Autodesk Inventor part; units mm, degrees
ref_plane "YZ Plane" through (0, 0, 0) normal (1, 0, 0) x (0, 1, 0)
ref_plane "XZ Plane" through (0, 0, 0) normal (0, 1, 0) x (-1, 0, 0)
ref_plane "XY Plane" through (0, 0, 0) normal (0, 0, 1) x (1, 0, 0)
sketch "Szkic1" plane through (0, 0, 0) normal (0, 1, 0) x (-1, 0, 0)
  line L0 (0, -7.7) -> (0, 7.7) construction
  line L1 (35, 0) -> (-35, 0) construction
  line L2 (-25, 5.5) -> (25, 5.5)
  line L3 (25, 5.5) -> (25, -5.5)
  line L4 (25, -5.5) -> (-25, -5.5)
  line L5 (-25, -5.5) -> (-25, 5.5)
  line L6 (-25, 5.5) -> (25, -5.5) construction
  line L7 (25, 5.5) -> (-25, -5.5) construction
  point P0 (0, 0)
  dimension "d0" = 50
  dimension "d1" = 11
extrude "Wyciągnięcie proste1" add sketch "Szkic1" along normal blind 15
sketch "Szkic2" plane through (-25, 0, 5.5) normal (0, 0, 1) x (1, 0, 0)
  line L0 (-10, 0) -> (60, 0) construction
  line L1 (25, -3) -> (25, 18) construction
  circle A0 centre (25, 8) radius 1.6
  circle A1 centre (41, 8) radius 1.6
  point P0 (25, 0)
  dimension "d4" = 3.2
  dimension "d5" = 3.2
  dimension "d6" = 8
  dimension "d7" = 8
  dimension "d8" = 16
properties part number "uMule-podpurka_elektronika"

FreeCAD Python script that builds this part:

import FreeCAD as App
import Part
import Sketcher

V = App.Vector
Q = App.Units.Quantity


def add_polygon(sketch, points):
    """Adds a closed chain of lines whose ends are joined by coincident constraints."""
    first, n = sketch.GeometryCount, len(points)
    for a, b in zip(points, points[1:] + points[:1]):
        sketch.addGeometry(Part.LineSegment(App.Vector(*a, 0), App.Vector(*b, 0)), False)
    for i in range(n):
        sketch.addConstraint(Sketcher.Constraint("Coincident", first + i, 2, first + (i + 1) % n, 1))

doc = App.newDocument("Part")
params = doc.addObject("Spreadsheet::Sheet", "Params")
for row, (alias, value) in enumerate([
    ("sketch1_width", "50 mm"),
    ("sketch1_height", "11 mm"),
    ("pad1_length", "15 mm"),
], start=1):
    params.set(f"A{row}", alias)
    params.set(f"B{row}", "=" + value)
    params.setAlias(f"B{row}", alias)

body = doc.addObject("PartDesign::Body", "Body")

sketch1 = doc.addObject("Sketcher::SketchObject", "Sketch")
body.addObject(sketch1)
sketch1.AttachmentSupport = (doc.XZ_Plane, [""])
sketch1.MapMode = "FlatFace"
add_polygon(sketch1, [(-25, 6), (25, 6), (25, -6), (-25, -6)])
sketch1.addConstraint([
    Sketcher.Constraint("Horizontal", 0),
    Sketcher.Constraint("Vertical", 1),
    Sketcher.Constraint("Horizontal", 2),
    Sketcher.Constraint("Vertical", 3),
    Sketcher.Constraint("Symmetric", 0, 2, 2, 2, -1, 1),
    Sketcher.Constraint("DistanceX", 0, 1, 0, 2, Q("50 mm")),
    Sketcher.Constraint("DistanceY", 1, 2, 1, 1, Q("11 mm")),
])
sketch1.setExpression("Constraints[9]", "Params.sketch1_width")
sketch1.setExpression("Constraints[10]", "Params.sketch1_height")
pad1 = doc.addObject("PartDesign::Pad", "Pad")
body.addObject(pad1)
pad1.Profile = sketch1
pad1.setExpression("Length", "Params.pad1_length")
pad1.Reversed = True

doc.recompute()
